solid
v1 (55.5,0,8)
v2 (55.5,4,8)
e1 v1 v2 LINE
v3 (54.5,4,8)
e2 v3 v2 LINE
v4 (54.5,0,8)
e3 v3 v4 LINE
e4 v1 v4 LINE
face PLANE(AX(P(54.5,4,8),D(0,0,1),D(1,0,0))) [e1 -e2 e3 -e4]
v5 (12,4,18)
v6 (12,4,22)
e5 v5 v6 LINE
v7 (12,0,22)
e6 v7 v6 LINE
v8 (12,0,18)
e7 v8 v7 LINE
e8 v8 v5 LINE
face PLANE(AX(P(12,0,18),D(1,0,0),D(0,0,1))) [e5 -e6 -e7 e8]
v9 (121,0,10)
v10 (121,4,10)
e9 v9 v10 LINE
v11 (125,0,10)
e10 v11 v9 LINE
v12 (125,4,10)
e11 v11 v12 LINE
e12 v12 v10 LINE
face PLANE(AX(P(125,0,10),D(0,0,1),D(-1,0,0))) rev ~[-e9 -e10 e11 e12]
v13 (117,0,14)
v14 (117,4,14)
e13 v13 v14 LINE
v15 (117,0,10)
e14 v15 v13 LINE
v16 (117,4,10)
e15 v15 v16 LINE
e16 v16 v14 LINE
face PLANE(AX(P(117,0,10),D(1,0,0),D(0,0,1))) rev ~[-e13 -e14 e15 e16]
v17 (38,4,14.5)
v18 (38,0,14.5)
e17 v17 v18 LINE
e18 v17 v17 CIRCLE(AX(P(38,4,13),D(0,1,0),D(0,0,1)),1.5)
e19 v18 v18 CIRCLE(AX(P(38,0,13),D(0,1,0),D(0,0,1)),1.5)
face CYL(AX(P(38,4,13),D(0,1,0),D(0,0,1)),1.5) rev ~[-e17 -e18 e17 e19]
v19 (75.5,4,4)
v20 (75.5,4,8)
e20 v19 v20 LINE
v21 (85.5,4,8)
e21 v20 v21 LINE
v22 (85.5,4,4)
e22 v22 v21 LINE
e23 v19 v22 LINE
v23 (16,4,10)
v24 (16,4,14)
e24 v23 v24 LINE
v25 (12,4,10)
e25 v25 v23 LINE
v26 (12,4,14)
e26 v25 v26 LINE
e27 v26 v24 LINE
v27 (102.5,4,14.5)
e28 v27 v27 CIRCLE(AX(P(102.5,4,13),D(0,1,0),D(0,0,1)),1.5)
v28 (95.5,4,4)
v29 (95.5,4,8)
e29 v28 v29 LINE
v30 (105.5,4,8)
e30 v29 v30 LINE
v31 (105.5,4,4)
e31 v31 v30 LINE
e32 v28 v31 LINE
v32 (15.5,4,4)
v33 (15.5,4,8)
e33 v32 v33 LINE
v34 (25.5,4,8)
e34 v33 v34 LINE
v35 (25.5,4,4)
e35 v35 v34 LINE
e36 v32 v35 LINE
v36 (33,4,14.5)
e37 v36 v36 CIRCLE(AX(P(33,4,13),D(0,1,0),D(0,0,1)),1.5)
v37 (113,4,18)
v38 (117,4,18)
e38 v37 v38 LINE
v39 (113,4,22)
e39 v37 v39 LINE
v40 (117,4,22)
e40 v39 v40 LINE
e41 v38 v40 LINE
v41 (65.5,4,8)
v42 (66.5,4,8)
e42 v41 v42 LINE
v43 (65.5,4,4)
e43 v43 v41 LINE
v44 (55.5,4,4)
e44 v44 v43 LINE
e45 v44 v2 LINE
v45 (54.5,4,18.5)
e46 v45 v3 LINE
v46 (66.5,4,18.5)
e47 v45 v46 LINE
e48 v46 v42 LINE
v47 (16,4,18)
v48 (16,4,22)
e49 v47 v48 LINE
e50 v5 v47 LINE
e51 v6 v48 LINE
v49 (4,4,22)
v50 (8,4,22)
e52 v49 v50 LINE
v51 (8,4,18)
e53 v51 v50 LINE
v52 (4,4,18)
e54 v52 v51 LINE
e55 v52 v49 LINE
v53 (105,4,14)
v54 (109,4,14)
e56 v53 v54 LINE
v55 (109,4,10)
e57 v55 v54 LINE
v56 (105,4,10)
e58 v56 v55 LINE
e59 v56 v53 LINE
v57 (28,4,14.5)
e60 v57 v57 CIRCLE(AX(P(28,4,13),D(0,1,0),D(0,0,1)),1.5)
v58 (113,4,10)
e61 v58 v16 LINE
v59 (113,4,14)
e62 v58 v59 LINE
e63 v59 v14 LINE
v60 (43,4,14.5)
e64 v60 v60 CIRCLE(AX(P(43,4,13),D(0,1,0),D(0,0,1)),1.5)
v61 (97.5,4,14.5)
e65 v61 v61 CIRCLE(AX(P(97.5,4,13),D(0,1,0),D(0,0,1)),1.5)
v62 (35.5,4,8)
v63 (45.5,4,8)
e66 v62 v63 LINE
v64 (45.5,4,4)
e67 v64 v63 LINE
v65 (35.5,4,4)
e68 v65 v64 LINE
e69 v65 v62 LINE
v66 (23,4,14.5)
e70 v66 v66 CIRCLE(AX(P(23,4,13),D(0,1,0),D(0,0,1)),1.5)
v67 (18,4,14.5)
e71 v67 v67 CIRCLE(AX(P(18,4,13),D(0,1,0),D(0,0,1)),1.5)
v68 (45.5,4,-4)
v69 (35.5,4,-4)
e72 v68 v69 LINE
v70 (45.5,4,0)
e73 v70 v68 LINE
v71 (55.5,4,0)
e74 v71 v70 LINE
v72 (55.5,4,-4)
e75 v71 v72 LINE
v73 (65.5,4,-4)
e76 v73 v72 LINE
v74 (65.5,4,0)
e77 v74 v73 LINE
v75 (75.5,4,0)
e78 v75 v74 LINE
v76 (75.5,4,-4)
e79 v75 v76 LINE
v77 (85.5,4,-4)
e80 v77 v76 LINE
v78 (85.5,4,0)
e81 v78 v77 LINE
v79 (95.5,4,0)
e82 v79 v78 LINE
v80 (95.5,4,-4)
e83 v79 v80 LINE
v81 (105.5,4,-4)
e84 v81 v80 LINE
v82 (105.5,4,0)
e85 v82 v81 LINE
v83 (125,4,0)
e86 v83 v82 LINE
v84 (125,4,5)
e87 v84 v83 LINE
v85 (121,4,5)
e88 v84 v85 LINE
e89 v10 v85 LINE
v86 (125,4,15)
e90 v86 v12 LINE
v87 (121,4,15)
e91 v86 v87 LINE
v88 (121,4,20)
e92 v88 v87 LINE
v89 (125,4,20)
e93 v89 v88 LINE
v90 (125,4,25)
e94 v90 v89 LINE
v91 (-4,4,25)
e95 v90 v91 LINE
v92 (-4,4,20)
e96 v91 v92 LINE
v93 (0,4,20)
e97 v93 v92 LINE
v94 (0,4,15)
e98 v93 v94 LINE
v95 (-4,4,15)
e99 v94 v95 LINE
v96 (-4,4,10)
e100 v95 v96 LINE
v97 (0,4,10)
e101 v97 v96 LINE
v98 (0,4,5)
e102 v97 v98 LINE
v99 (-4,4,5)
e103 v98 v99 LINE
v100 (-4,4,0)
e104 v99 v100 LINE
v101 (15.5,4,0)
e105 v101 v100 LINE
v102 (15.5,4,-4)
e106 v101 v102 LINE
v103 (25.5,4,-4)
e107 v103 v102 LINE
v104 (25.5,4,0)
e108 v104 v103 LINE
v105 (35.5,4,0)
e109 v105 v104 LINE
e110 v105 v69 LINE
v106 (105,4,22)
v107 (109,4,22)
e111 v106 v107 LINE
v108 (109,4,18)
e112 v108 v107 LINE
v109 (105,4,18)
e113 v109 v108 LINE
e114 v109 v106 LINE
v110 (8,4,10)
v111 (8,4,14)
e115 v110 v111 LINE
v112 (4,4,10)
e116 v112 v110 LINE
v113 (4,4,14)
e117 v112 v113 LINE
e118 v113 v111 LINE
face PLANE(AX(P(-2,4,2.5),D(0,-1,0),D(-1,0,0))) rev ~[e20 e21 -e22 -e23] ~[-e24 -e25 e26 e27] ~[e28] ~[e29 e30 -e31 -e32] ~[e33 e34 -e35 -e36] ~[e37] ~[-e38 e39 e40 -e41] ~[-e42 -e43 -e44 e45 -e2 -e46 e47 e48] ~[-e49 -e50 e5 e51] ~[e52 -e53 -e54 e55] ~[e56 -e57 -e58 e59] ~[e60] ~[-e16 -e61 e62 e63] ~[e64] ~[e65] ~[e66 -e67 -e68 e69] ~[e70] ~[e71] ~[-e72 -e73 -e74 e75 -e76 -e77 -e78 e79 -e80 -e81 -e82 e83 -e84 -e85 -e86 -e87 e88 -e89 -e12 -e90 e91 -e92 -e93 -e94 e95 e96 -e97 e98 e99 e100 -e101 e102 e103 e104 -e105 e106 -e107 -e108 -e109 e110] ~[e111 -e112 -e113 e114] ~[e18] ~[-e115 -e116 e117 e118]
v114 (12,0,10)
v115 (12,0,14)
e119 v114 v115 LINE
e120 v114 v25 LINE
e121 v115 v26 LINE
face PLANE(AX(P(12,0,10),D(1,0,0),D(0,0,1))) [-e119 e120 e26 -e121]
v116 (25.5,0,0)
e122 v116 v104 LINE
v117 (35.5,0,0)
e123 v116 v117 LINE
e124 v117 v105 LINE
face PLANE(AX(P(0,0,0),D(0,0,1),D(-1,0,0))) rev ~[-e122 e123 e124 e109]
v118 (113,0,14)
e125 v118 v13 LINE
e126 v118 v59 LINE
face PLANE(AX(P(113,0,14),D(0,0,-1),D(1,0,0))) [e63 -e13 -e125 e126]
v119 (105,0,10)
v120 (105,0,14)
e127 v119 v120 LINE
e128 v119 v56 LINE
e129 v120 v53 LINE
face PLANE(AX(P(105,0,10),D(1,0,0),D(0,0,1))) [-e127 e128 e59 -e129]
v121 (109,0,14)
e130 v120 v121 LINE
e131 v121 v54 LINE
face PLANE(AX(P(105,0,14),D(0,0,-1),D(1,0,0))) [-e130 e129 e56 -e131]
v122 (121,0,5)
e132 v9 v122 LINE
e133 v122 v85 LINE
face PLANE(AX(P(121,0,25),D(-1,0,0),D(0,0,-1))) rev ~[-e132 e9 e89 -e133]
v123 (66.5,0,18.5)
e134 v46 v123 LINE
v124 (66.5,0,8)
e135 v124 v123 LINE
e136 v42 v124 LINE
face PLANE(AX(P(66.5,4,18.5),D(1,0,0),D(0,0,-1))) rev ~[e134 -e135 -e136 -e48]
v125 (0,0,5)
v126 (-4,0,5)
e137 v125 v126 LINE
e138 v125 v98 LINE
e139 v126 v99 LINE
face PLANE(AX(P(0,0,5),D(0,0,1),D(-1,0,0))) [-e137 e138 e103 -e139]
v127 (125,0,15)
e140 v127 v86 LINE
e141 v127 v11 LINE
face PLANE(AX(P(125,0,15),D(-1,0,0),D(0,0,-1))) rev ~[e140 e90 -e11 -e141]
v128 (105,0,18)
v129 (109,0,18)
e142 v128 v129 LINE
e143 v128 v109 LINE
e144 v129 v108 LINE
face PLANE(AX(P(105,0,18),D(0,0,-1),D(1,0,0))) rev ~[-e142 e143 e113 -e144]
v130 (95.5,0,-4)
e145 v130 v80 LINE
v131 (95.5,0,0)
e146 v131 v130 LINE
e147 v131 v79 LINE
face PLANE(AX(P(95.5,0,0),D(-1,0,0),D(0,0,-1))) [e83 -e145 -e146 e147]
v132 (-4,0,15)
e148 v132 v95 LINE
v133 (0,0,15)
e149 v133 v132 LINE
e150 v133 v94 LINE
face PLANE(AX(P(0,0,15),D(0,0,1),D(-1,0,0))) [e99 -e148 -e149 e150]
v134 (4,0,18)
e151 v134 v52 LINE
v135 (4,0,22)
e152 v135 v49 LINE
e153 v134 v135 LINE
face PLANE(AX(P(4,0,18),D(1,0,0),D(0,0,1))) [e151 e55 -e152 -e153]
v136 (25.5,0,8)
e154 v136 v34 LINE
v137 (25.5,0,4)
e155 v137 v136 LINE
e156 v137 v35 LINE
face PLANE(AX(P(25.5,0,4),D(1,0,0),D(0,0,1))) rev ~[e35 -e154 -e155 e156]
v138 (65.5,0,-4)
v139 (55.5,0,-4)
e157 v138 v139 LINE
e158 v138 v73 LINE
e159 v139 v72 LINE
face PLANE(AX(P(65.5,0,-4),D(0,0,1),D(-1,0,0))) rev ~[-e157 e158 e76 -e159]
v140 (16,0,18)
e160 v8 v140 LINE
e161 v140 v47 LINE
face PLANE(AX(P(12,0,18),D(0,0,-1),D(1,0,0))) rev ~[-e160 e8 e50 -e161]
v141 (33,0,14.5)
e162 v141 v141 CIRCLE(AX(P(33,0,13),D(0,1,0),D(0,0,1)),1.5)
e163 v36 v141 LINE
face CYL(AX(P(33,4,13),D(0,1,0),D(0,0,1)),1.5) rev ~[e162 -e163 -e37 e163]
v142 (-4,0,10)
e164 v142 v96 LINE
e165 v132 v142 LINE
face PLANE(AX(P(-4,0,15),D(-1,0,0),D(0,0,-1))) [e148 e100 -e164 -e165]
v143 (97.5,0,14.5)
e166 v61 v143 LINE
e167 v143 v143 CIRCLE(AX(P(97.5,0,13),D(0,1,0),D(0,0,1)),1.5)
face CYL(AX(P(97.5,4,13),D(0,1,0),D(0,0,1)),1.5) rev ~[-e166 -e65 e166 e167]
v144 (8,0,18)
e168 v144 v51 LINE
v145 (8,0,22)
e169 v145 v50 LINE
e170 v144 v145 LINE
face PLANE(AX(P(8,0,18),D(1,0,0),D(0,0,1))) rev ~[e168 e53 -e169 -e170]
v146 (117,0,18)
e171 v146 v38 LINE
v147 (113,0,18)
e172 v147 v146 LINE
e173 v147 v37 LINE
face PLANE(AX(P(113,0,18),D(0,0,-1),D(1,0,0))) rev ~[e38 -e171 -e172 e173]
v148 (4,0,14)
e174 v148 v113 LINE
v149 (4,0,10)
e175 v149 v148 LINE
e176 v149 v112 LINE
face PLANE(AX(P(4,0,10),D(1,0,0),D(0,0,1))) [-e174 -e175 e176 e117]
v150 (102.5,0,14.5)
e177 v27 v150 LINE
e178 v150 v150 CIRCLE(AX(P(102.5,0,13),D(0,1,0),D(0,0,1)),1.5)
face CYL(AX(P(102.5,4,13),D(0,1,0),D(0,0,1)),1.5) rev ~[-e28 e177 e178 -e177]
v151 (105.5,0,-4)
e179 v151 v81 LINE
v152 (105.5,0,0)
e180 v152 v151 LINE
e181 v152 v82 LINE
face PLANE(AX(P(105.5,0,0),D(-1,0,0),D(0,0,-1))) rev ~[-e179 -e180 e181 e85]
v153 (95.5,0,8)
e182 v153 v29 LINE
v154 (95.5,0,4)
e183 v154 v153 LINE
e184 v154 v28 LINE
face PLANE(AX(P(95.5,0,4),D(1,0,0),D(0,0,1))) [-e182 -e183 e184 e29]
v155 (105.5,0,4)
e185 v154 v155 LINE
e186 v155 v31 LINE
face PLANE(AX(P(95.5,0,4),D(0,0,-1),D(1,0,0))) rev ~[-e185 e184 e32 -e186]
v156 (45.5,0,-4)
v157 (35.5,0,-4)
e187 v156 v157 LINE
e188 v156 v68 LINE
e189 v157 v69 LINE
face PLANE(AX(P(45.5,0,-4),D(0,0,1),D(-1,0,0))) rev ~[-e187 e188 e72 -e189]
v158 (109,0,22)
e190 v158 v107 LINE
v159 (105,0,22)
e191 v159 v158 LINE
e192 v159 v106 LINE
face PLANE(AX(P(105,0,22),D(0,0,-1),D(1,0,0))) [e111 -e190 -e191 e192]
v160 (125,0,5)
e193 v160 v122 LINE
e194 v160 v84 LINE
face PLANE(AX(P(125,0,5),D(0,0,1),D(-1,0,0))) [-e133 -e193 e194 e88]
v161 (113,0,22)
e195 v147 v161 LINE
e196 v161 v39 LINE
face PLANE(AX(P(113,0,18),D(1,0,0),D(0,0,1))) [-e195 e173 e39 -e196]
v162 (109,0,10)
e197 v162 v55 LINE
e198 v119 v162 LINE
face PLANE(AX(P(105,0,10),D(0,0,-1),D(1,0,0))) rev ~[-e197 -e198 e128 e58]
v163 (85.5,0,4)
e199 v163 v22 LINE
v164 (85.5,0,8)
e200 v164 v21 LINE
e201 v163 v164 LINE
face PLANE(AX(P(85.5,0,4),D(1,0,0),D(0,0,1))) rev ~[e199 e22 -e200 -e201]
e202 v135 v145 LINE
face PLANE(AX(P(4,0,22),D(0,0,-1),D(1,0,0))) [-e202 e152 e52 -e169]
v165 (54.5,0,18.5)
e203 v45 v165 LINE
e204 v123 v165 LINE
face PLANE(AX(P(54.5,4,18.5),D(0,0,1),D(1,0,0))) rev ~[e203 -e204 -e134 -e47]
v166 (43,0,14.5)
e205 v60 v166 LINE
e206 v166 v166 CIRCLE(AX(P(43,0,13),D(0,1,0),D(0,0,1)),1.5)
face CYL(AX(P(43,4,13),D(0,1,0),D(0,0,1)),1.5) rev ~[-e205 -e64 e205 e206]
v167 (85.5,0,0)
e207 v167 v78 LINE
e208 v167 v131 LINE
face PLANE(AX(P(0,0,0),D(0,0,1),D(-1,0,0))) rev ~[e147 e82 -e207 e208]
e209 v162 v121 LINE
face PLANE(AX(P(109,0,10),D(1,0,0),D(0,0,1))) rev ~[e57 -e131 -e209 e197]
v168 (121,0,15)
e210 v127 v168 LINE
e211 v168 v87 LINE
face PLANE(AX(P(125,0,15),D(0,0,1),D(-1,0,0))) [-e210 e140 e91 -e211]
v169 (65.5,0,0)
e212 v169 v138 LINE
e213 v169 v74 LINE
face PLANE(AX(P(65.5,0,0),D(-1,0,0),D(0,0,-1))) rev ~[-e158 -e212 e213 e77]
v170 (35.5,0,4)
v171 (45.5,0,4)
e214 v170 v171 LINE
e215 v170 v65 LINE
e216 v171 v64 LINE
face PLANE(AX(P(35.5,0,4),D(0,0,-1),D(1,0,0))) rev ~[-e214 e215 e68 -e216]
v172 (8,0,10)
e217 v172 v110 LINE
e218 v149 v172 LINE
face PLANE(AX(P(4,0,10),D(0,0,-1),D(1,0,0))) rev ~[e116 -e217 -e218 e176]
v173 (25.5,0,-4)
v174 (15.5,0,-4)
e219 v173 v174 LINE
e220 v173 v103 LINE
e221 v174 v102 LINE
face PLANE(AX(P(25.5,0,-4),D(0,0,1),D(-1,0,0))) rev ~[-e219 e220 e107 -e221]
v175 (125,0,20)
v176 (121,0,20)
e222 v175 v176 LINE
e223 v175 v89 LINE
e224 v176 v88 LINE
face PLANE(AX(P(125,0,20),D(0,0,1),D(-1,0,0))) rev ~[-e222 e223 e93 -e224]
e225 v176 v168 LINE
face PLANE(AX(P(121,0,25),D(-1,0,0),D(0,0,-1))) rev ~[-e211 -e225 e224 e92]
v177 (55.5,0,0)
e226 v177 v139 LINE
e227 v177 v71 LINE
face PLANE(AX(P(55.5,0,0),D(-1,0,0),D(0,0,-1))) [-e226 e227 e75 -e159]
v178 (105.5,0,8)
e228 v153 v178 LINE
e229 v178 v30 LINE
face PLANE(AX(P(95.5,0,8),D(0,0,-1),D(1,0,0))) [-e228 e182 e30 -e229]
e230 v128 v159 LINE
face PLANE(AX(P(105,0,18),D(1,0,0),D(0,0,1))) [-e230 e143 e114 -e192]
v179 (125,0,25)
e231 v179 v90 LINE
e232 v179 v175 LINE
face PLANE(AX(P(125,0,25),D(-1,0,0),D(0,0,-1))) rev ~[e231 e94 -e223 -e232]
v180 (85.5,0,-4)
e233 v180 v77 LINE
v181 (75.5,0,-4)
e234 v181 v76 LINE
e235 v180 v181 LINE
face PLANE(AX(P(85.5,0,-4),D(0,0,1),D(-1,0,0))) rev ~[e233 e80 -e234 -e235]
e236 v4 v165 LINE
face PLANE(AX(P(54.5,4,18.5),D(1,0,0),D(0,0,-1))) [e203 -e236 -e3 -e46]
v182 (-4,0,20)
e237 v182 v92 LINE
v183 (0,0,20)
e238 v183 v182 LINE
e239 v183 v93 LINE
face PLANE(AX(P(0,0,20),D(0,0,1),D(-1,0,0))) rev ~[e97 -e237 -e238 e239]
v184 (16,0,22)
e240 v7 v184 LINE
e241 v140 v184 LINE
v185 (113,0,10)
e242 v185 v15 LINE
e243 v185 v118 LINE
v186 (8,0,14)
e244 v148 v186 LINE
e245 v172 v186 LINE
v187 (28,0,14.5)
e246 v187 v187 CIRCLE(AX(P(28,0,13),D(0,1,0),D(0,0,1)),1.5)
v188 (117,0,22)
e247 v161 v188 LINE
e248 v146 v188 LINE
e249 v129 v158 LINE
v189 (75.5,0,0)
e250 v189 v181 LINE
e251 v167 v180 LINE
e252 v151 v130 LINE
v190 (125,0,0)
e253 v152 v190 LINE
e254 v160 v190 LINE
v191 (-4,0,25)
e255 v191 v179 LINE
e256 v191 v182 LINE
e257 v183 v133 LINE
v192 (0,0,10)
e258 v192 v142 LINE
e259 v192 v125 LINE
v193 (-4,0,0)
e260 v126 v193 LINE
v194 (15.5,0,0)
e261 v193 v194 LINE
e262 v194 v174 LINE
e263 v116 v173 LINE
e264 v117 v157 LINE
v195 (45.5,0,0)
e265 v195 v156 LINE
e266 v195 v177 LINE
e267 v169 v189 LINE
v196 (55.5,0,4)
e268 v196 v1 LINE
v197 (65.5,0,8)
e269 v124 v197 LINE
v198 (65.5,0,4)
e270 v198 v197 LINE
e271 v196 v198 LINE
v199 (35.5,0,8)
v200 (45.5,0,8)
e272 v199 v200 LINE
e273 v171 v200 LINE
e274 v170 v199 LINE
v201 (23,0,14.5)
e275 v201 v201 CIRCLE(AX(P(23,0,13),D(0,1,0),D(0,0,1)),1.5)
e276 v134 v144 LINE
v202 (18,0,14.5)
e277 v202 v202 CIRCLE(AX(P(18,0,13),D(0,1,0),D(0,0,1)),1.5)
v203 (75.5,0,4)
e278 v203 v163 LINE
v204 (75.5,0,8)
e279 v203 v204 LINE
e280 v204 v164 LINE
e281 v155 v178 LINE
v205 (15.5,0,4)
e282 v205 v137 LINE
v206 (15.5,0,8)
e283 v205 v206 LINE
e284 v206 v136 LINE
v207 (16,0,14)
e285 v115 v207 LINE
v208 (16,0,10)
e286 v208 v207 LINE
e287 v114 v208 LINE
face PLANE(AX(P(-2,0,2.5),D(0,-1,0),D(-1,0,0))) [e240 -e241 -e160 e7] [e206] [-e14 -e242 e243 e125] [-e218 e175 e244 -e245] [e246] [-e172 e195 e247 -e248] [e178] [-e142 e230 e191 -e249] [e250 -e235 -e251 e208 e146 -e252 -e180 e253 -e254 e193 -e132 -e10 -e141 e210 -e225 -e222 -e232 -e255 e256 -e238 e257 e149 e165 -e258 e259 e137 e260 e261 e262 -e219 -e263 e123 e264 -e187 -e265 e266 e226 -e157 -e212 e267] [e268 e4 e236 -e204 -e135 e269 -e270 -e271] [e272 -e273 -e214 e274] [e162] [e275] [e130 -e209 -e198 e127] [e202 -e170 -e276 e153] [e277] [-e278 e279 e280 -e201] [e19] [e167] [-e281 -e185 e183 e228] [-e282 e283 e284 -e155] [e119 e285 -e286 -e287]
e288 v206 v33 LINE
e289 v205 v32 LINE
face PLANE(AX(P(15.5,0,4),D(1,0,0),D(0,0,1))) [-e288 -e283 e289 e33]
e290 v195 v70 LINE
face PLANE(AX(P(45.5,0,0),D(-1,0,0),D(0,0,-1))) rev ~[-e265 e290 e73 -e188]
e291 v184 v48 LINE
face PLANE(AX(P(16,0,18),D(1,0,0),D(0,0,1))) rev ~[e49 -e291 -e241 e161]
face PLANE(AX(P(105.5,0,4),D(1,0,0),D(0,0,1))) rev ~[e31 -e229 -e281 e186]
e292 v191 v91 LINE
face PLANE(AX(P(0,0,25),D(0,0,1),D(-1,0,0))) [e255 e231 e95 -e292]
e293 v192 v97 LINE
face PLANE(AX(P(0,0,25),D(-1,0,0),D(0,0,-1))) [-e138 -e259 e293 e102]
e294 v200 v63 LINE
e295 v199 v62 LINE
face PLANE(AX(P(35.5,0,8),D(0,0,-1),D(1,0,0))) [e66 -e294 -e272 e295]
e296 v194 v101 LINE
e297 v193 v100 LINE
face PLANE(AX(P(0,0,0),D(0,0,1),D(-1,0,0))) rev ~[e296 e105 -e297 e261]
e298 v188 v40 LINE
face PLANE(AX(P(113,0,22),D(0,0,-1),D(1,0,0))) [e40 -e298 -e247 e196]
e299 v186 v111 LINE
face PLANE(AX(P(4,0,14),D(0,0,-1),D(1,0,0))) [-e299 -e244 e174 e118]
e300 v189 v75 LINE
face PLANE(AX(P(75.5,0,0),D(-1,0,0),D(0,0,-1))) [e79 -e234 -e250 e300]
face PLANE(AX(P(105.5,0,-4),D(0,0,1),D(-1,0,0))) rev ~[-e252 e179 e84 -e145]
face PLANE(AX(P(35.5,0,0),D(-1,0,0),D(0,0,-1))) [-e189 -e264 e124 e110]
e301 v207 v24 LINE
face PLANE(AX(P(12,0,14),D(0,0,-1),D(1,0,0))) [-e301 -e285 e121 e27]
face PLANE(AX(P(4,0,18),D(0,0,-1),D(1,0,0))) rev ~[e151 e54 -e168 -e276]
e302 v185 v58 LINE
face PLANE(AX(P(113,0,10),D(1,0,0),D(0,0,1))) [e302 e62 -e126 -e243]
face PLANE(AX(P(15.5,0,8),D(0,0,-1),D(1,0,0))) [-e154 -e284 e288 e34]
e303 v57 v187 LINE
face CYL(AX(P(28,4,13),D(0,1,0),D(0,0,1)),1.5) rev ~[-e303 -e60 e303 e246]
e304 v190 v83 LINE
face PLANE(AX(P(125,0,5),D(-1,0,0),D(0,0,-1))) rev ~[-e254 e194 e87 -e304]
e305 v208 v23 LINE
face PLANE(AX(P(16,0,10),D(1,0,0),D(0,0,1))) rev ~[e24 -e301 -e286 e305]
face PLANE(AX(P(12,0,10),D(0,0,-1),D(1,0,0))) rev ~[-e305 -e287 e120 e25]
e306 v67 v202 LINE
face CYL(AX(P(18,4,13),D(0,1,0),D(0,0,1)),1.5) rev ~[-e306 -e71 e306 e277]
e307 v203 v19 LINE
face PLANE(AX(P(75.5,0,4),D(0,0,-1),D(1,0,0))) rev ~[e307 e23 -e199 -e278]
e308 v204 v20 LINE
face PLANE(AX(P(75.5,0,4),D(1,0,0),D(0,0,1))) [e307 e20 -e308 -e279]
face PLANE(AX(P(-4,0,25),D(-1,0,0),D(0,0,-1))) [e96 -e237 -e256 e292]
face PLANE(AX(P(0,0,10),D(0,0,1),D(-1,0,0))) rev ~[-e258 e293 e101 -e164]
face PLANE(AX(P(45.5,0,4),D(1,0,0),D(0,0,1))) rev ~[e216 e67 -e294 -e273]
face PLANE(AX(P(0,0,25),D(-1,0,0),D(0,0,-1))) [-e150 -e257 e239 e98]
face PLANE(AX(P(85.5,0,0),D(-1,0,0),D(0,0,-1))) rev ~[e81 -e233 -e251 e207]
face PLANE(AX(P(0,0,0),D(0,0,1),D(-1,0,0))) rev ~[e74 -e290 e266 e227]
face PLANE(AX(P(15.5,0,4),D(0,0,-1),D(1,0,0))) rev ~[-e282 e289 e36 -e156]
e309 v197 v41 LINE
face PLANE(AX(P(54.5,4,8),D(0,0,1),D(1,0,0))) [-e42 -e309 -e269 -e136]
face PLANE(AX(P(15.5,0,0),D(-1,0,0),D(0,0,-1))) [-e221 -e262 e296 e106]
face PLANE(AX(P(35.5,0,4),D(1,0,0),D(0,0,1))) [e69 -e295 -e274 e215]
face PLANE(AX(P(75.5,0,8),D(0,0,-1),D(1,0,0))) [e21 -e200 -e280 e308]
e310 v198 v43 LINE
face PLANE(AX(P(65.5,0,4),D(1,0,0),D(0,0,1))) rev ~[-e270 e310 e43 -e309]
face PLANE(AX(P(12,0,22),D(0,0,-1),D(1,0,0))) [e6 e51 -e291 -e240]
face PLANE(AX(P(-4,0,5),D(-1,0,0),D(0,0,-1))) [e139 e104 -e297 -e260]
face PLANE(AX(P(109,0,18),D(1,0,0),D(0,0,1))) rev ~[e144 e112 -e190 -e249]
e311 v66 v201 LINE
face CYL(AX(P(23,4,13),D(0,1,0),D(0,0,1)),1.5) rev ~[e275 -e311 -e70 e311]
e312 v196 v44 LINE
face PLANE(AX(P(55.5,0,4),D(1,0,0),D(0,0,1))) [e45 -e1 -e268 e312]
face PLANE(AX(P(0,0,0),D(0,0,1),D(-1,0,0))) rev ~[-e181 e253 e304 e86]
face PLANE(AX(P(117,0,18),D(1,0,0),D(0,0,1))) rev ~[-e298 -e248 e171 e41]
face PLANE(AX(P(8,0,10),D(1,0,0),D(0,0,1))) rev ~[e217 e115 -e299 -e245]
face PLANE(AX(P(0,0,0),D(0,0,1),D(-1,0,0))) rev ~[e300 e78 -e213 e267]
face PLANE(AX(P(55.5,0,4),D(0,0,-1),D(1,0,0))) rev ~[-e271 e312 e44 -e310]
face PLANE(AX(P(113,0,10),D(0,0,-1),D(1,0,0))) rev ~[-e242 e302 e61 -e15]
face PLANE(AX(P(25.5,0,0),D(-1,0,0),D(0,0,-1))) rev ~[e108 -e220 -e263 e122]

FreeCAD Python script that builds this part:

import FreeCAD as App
import Part
import Sketcher

doc = App.newDocument("Part")
body = doc.addObject("PartDesign::Body", "Body")

# Sketch on XZ plane
sketch1 = body.newObject("Sketcher::SketchObject", "Sketch")
sketch1.AttachmentSupport = (doc.getObject("XZ_Plane"), [""])
sketch1.MapMode = "FlatFace"
sketch1.addGeometry(Part.LineSegment(App.Vector(0, 0, 0), App.Vector(0, 25, 0)), False)
sketch1.addGeometry(Part.LineSegment(App.Vector(0, 25, 0), App.Vector(121, 25, 0)), False)
sketch1.addGeometry(Part.LineSegment(App.Vector(121, 25, 0), App.Vector(121, 0, 0)), False)
sketch1.addGeometry(Part.LineSegment(App.Vector(121, 0, 0), App.Vector(0, 0, 0)), False)
sketch1.addConstraint(Sketcher.Constraint("Coincident", 0, 2, 1, 1))
sketch1.addConstraint(Sketcher.Constraint("Coincident", 1, 2, 2, 1))
sketch1.addConstraint(Sketcher.Constraint("Coincident", 2, 2, 3, 1))
sketch1.addConstraint(Sketcher.Constraint("Coincident", 3, 2, 0, 1))
sketch1.addConstraint(Sketcher.Constraint("Vertical", 0))
sketch1.addConstraint(Sketcher.Constraint("Horizontal", 1))
sketch1.addConstraint(Sketcher.Constraint("Vertical", 2))
sketch1.addConstraint(Sketcher.Constraint("Horizontal", 3))
sketch1.addConstraint(Sketcher.Constraint("Coincident", 3, 2, -1, 1))
sketch1.addConstraint(Sketcher.Constraint("DistanceX", 1, 1, 1, 2, 121.0))
sketch1.addConstraint(Sketcher.Constraint("DistanceY", 0, 1, 0, 2, 25.0))
pad1 = body.newObject("PartDesign::Pad", "Pad")
pad1.Profile = sketch1
pad1.Length = 4
pad1.Reversed = True

# Sketch on XZ plane
sketch2 = body.newObject("Sketcher::SketchObject", "Sketch001")
sketch2.AttachmentSupport = (doc.getObject("XZ_Plane"), [""])
sketch2.MapMode = "FlatFace"
sketch2.addGeometry(Part.LineSegment(App.Vector(0, 20, 0), App.Vector(0, 25, 0)), False)
sketch2.addGeometry(Part.LineSegment(App.Vector(0, 25, 0), App.Vector(-4, 25, 0)), False)
sketch2.addGeometry(Part.LineSegment(App.Vector(-4, 25, 0), App.Vector(-4, 20, 0)), False)
sketch2.addGeometry(Part.LineSegment(App.Vector(-4, 20, 0), App.Vector(0, 20, 0)), False)
sketch2.addGeometry(Part.LineSegment(App.Vector(125, 20, 0), App.Vector(125, 25, 0)), False)
sketch2.addGeometry(Part.LineSegment(App.Vector(125, 25, 0), App.Vector(121, 25, 0)), False)
sketch2.addGeometry(Part.LineSegment(App.Vector(121, 25, 0), App.Vector(121, 20, 0)), False)
sketch2.addGeometry(Part.LineSegment(App.Vector(121, 20, 0), App.Vector(125, 20, 0)), False)
sketch2.addConstraint(Sketcher.Constraint("Coincident", 0, 2, 1, 1))
sketch2.addConstraint(Sketcher.Constraint("Coincident", 1, 2, 2, 1))
sketch2.addConstraint(Sketcher.Constraint("Coincident", 2, 2, 3, 1))
sketch2.addConstraint(Sketcher.Constraint("Coincident", 3, 2, 0, 1))
sketch2.addConstraint(Sketcher.Constraint("Coincident", 4, 2, 5, 1))
sketch2.addConstraint(Sketcher.Constraint("Coincident", 5, 2, 6, 1))
sketch2.addConstraint(Sketcher.Constraint("Coincident", 6, 2, 7, 1))
sketch2.addConstraint(Sketcher.Constraint("Coincident", 7, 2, 4, 1))
sketch2.addConstraint(Sketcher.Constraint("Vertical", 0))
sketch2.addConstraint(Sketcher.Constraint("Horizontal", 1))
sketch2.addConstraint(Sketcher.Constraint("Vertical", 2))
sketch2.addConstraint(Sketcher.Constraint("Horizontal", 3))
sketch2.addConstraint(Sketcher.Constraint("Vertical", 4))
sketch2.addConstraint(Sketcher.Constraint("Horizontal", 5))
sketch2.addConstraint(Sketcher.Constraint("Vertical", 6))
sketch2.addConstraint(Sketcher.Constraint("Horizontal", 7))
sketch2.addConstraint(Sketcher.Constraint("PointOnObject", 0, 2, -2))
sketch2.addConstraint(Sketcher.Constraint("Horizontal", 1, 2, 4, 2))
sketch2.addConstraint(Sketcher.Constraint("Horizontal", 3, 2, 6, 2))
sketch2.addConstraint(Sketcher.Constraint("Equal", 3, 5))
sketch2.addConstraint(Sketcher.Constraint("DistanceX", 1, 2, 1, 1, 4.0))
sketch2.addConstraint(Sketcher.Constraint("DistanceY", 0, 1, 0, 2, 5.0))
sketch2.addConstraint(Sketcher.Constraint("DistanceY", -1, 1, 0, 2, 25.0))
sketch2.addConstraint(Sketcher.Constraint("DistanceX", -1, 1, 4, 2, 125.0))
pad2 = body.newObject("PartDesign::Pad", "Pad001")
pad2.Profile = sketch2
pad2.Length = 4
pad2.Reversed = True
doc.recompute()

linearpattern = body.newObject("PartDesign::LinearPattern", "LinearPattern")
linearpattern.Originals = [pad2]
linearpattern.Direction = (doc.getObject("Z_Axis"), [""])
linearpattern.Mode = "offset"
linearpattern.Offset = 10
linearpattern.Occurrences = 3
linearpattern.Reversed = True
body.Tip = linearpattern

# Sketch on XZ plane
sketch3 = body.newObject("Sketcher::SketchObject", "Sketch002")
sketch3.AttachmentSupport = (doc.getObject("XZ_Plane"), [""])
sketch3.MapMode = "FlatFace"
sketch3.addGeometry(Part.LineSegment(App.Vector(65.5, -4, 0), App.Vector(65.5, 0, 0)), False)
sketch3.addGeometry(Part.LineSegment(App.Vector(65.5, 0, 0), App.Vector(55.5, 0, 0)), False)
sketch3.addGeometry(Part.LineSegment(App.Vector(55.5, 0, 0), App.Vector(55.5, -4, 0)), False)
sketch3.addGeometry(Part.LineSegment(App.Vector(55.5, -4, 0), App.Vector(65.5, -4, 0)), False)
sketch3.addConstraint(Sketcher.Constraint("Coincident", 0, 2, 1, 1))
sketch3.addConstraint(Sketcher.Constraint("Coincident", 1, 2, 2, 1))
sketch3.addConstraint(Sketcher.Constraint("Coincident", 2, 2, 3, 1))
sketch3.addConstraint(Sketcher.Constraint("Coincident", 3, 2, 0, 1))
sketch3.addConstraint(Sketcher.Constraint("Vertical", 0))
sketch3.addConstraint(Sketcher.Constraint("Horizontal", 1))
sketch3.addConstraint(Sketcher.Constraint("Vertical", 2))
sketch3.addConstraint(Sketcher.Constraint("Horizontal", 3))
sketch3.addConstraint(Sketcher.Constraint("PointOnObject", 0, 2, -1))
sketch3.addConstraint(Sketcher.Constraint("DistanceX", 1, 2, 1, 1, 10.0))
sketch3.addConstraint(Sketcher.Constraint("DistanceY", 0, 1, 0, 2, 4.0))
sketch3.addConstraint(Sketcher.Constraint("DistanceX", -1, 1, 0, 2, 65.5))
pad3 = body.newObject("PartDesign::Pad", "Pad002")
pad3.Profile = sketch3
pad3.Length = 4
pad3.Reversed = True
doc.recompute()

linearpattern2 = body.newObject("PartDesign::LinearPattern", "LinearPattern001")
linearpattern2.Originals = [pad3]
linearpattern2.Direction = (doc.getObject("X_Axis"), [""])
linearpattern2.Mode = "offset"
linearpattern2.Offset = 20
linearpattern2.Occurrences = 3
body.Tip = linearpattern2
doc.recompute()

linearpattern3 = body.newObject("PartDesign::LinearPattern", "LinearPattern002")
linearpattern3.Originals = [pad3]
linearpattern3.Direction = (doc.getObject("X_Axis"), [""])
linearpattern3.Mode = "offset"
linearpattern3.Offset = 20
linearpattern3.Occurrences = 3
linearpattern3.Reversed = True
body.Tip = linearpattern3

# Sketch on XZ plane
sketch4 = body.newObject("Sketcher::SketchObject", "Sketch003")
sketch4.AttachmentSupport = (doc.getObject("XZ_Plane"), [""])
sketch4.MapMode = "FlatFace"
sketch4.addGeometry(Part.LineSegment(App.Vector(15.5, 8, 0), App.Vector(15.5, 4, 0)), False)
sketch4.addGeometry(Part.LineSegment(App.Vector(15.5, 4, 0), App.Vector(25.5, 4, 0)), False)
sketch4.addGeometry(Part.LineSegment(App.Vector(25.5, 4, 0), App.Vector(25.5, 8, 0)), False)
sketch4.addGeometry(Part.LineSegment(App.Vector(25.5, 8, 0), App.Vector(15.5, 8, 0)), False)
sketch4.addGeometry(Part.LineSegment(App.Vector(35.5, 8, 0), App.Vector(35.5, 4, 0)), False)
sketch4.addGeometry(Part.LineSegment(App.Vector(35.5, 4, 0), App.Vector(45.5, 4, 0)), False)
sketch4.addGeometry(Part.LineSegment(App.Vector(45.5, 4, 0), App.Vector(45.5, 8, 0)), False)
sketch4.addGeometry(Part.LineSegment(App.Vector(45.5, 8, 0), App.Vector(35.5, 8, 0)), False)
sketch4.addGeometry(Part.LineSegment(App.Vector(55.5, 8, 0), App.Vector(55.5, 4, 0)), False)
sketch4.addGeometry(Part.LineSegment(App.Vector(55.5, 4, 0), App.Vector(65.5, 4, 0)), False)
sketch4.addGeometry(Part.LineSegment(App.Vector(65.5, 4, 0), App.Vector(65.5, 8, 0)), False)
sketch4.addGeometry(Part.LineSegment(App.Vector(65.5, 8, 0), App.Vector(55.5, 8, 0)), False)
sketch4.addGeometry(Part.LineSegment(App.Vector(75.5, 8, 0), App.Vector(75.5, 4, 0)), False)
sketch4.addGeometry(Part.LineSegment(App.Vector(75.5, 4, 0), App.Vector(85.5, 4, 0)), False)
sketch4.addGeometry(Part.LineSegment(App.Vector(85.5, 4, 0), App.Vector(85.5, 8, 0)), False)
sketch4.addGeometry(Part.LineSegment(App.Vector(85.5, 8, 0), App.Vector(75.5, 8, 0)), False)
sketch4.addGeometry(Part.LineSegment(App.Vector(95.5, 8, 0), App.Vector(95.5, 4, 0)), False)
sketch4.addGeometry(Part.LineSegment(App.Vector(95.5, 4, 0), App.Vector(105.5, 4, 0)), False)
sketch4.addGeometry(Part.LineSegment(App.Vector(105.5, 4, 0), App.Vector(105.5, 8, 0)), False)
sketch4.addGeometry(Part.LineSegment(App.Vector(105.5, 8, 0), App.Vector(95.5, 8, 0)), False)
sketch4.addConstraint(Sketcher.Constraint("Coincident", 0, 2, 1, 1))
sketch4.addConstraint(Sketcher.Constraint("Coincident", 1, 2, 2, 1))
sketch4.addConstraint(Sketcher.Constraint("Coincident", 2, 2, 3, 1))
sketch4.addConstraint(Sketcher.Constraint("Coincident", 3, 2, 0, 1))
sketch4.addConstraint(Sketcher.Constraint("Coincident", 4, 2, 5, 1))
sketch4.addConstraint(Sketcher.Constraint("Coincident", 5, 2, 6, 1))
sketch4.addConstraint(Sketcher.Constraint("Coincident", 6, 2, 7, 1))
sketch4.addConstraint(Sketcher.Constraint("Coincident", 7, 2, 4, 1))
sketch4.addConstraint(Sketcher.Constraint("Coincident", 8, 2, 9, 1))
sketch4.addConstraint(Sketcher.Constraint("Coincident", 9, 2, 10, 1))
sketch4.addConstraint(Sketcher.Constraint("Coincident", 10, 2, 11, 1))
sketch4.addConstraint(Sketcher.Constraint("Coincident", 11, 2, 8, 1))
sketch4.addConstraint(Sketcher.Constraint("Coincident", 12, 2, 13, 1))
sketch4.addConstraint(Sketcher.Constraint("Coincident", 13, 2, 14, 1))
sketch4.addConstraint(Sketcher.Constraint("Coincident", 14, 2, 15, 1))
sketch4.addConstraint(Sketcher.Constraint("Coincident", 15, 2, 12, 1))
sketch4.addConstraint(Sketcher.Constraint("Coincident", 16, 2, 17, 1))
sketch4.addConstraint(Sketcher.Constraint("Coincident", 17, 2, 18, 1))
sketch4.addConstraint(Sketcher.Constraint("Coincident", 18, 2, 19, 1))
sketch4.addConstraint(Sketcher.Constraint("Coincident", 19, 2, 16, 1))
sketch4.addConstraint(Sketcher.Constraint("Vertical", 0))
sketch4.addConstraint(Sketcher.Constraint("Horizontal", 1))
sketch4.addConstraint(Sketcher.Constraint("Vertical", 2))
sketch4.addConstraint(Sketcher.Constraint("Horizontal", 3))
sketch4.addConstraint(Sketcher.Constraint("Vertical", 4))
sketch4.addConstraint(Sketcher.Constraint("Horizontal", 5))
sketch4.addConstraint(Sketcher.Constraint("Vertical", 6))
sketch4.addConstraint(Sketcher.Constraint("Horizontal", 7))
sketch4.addConstraint(Sketcher.Constraint("Vertical", 8))
sketch4.addConstraint(Sketcher.Constraint("Horizontal", 9))
sketch4.addConstraint(Sketcher.Constraint("Vertical", 10))
sketch4.addConstraint(Sketcher.Constraint("Horizontal", 11))
sketch4.addConstraint(Sketcher.Constraint("Vertical", 12))
sketch4.addConstraint(Sketcher.Constraint("Horizontal", 13))
sketch4.addConstraint(Sketcher.Constraint("Vertical", 14))
sketch4.addConstraint(Sketcher.Constraint("Horizontal", 15))
sketch4.addConstraint(Sketcher.Constraint("Vertical", 16))
sketch4.addConstraint(Sketcher.Constraint("Horizontal", 17))
sketch4.addConstraint(Sketcher.Constraint("Vertical", 18))
sketch4.addConstraint(Sketcher.Constraint("Horizontal", 19))
sketch4.addConstraint(Sketcher.Constraint("Horizontal", 1, 2, 4, 2))
sketch4.addConstraint(Sketcher.Constraint("Horizontal", 3, 2, 6, 2))
sketch4.addConstraint(Sketcher.Constraint("Horizontal", 5, 2, 8, 2))
sketch4.addConstraint(Sketcher.Constraint("Horizontal", 7, 2, 10, 2))
sketch4.addConstraint(Sketcher.Constraint("Horizontal", 9, 2, 12, 2))
sketch4.addConstraint(Sketcher.Constraint("Horizontal", 11, 2, 14, 2))
sketch4.addConstraint(Sketcher.Constraint("Horizontal", 13, 2, 16, 2))
sketch4.addConstraint(Sketcher.Constraint("Horizontal", 15, 2, 18, 2))
sketch4.addConstraint(Sketcher.Constraint("Equal", 3, 5))
sketch4.addConstraint(Sketcher.Constraint("Equal", 7, 9))
sketch4.addConstraint(Sketcher.Constraint("Equal", 11, 13))
sketch4.addConstraint(Sketcher.Constraint("Equal", 15, 17))
sketch4.addConstraint(Sketcher.Constraint("DistanceX", 1, 1, 1, 2, 10.0))
sketch4.addConstraint(Sketcher.Constraint("DistanceY", 0, 2, 0, 1, 4.0))
sketch4.addConstraint(Sketcher.Constraint("DistanceY", -1, 1, 0, 2, 4.0))
sketch4.addConstraint(Sketcher.Constraint("DistanceX", 1, 2, 4, 2, 10.0))
sketch4.addConstraint(Sketcher.Constraint("DistanceX", 5, 2, 8, 2, 10.0))
sketch4.addConstraint(Sketcher.Constraint("DistanceX", 9, 2, 12, 2, 10.0))
sketch4.addConstraint(Sketcher.Constraint("DistanceX", 13, 2, 16, 2, 10.0))
sketch4.addConstraint(Sketcher.Constraint("DistanceX", -1, 1, 0, 2, 15.5))
pocket1 = body.newObject("PartDesign::Pocket", "Pocket")
pocket1.Profile = sketch4
pocket1.Type = "ThroughAll"

# Sketch on XZ plane
sketch5 = body.newObject("Sketcher::SketchObject", "Sketch004")
sketch5.AttachmentSupport = (doc.getObject("XZ_Plane"), [""])
sketch5.MapMode = "FlatFace"
sketch5.AttachmentOffset = App.Placement(App.Vector(0, 0, -4), App.Rotation())
sketch5.addGeometry(Part.Circle(App.Vector(97.5, 13, 0), App.Vector(0, 0, 1), 1.5), False)
sketch5.addGeometry(Part.Circle(App.Vector(102.5, 13, 0), App.Vector(0, 0, 1), 1.5), False)
sketch5.addGeometry(Part.Circle(App.Vector(43, 13, 0), App.Vector(0, 0, 1), 1.5), False)
sketch5.addGeometry(Part.Circle(App.Vector(38, 13, 0), App.Vector(0, 0, 1), 1.5), False)
sketch5.addGeometry(Part.Circle(App.Vector(33, 13, 0), App.Vector(0, 0, 1), 1.5), False)
sketch5.addGeometry(Part.Circle(App.Vector(28, 13, 0), App.Vector(0, 0, 1), 1.5), False)
sketch5.addGeometry(Part.Circle(App.Vector(23, 13, 0), App.Vector(0, 0, 1), 1.5), False)
sketch5.addGeometry(Part.Circle(App.Vector(18, 13, 0), App.Vector(0, 0, 1), 1.5), False)
sketch5.addGeometry(Part.LineSegment(App.Vector(54.5, 8, 0), App.Vector(54.5, 18.5, 0)), False)
sketch5.addGeometry(Part.LineSegment(App.Vector(54.5, 18.5, 0), App.Vector(66.5, 18.5, 0)), False)
sketch5.addGeometry(Part.LineSegment(App.Vector(66.5, 18.5, 0), App.Vector(66.5, 8, 0)), False)
sketch5.addGeometry(Part.LineSegment(App.Vector(66.5, 8, 0), App.Vector(54.5, 8, 0)), False)
sketch5.addConstraint(Sketcher.Constraint("Coincident", 8, 2, 9, 1))
sketch5.addConstraint(Sketcher.Constraint("Coincident", 9, 2, 10, 1))
sketch5.addConstraint(Sketcher.Constraint("Coincident", 10, 2, 11, 1))
sketch5.addConstraint(Sketcher.Constraint("Coincident", 11, 2, 8, 1))
sketch5.addConstraint(Sketcher.Constraint("Vertical", 8))
sketch5.addConstraint(Sketcher.Constraint("Horizontal", 9))
sketch5.addConstraint(Sketcher.Constraint("Vertical", 10))
sketch5.addConstraint(Sketcher.Constraint("Horizontal", 11))
sketch5.addConstraint(Sketcher.Constraint("Equal", 0, 1))
sketch5.addConstraint(Sketcher.Constraint("Equal", 1, 2))
sketch5.addConstraint(Sketcher.Constraint("Equal", 2, 3))
sketch5.addConstraint(Sketcher.Constraint("Equal", 3, 4))
sketch5.addConstraint(Sketcher.Constraint("Equal", 4, 5))
sketch5.addConstraint(Sketcher.Constraint("Equal", 5, 6))
sketch5.addConstraint(Sketcher.Constraint("Equal", 6, 7))
sketch5.addConstraint(Sketcher.Constraint("Horizontal", 0, 3, 1, 3))
sketch5.addConstraint(Sketcher.Constraint("Horizontal", 1, 3, 2, 3))
sketch5.addConstraint(Sketcher.Constraint("Horizontal", 2, 3, 3, 3))
sketch5.addConstraint(Sketcher.Constraint("Horizontal", 3, 3, 4, 3))
sketch5.addConstraint(Sketcher.Constraint("Horizontal", 4, 3, 5, 3))
sketch5.addConstraint(Sketcher.Constraint("Horizontal", 5, 3, 6, 3))
sketch5.addConstraint(Sketcher.Constraint("Horizontal", 6, 3, 7, 3))
sketch5.addConstraint(Sketcher.Constraint("Diameter", 0, 3.0))
sketch5.addConstraint(Sketcher.Constraint("DistanceX", 9, 1, 9, 2, 12.0))
sketch5.addConstraint(Sketcher.Constraint("DistanceY", 8, 1, 8, 2, 10.5))
sketch5.addConstraint(Sketcher.Constraint("DistanceY", -1, 1, 0, 3, 13.0))
sketch5.addConstraint(Sketcher.Constraint("DistanceX", -1, 1, 2, 3, 43.0))
sketch5.addConstraint(Sketcher.Constraint("DistanceX", -1, 1, 3, 3, 38.0))
sketch5.addConstraint(Sketcher.Constraint("DistanceX", -1, 1, 4, 3, 33.0))
sketch5.addConstraint(Sketcher.Constraint("DistanceX", -1, 1, 5, 3, 28.0))
sketch5.addConstraint(Sketcher.Constraint("DistanceX", -1, 1, 6, 3, 23.0))
sketch5.addConstraint(Sketcher.Constraint("DistanceX", -1, 1, 7, 3, 18.0))
sketch5.addConstraint(Sketcher.Constraint("DistanceY", -1, 1, 10, 2, 8.0))
sketch5.addConstraint(Sketcher.Constraint("DistanceX", 0, 3, 1, 3, 5.0))
sketch5.addConstraint(Sketcher.Constraint("DistanceX", 9, 2, 0, 3, 31.0))
sketch5.addConstraint(Sketcher.Constraint("DistanceX", -1, 1, 0, 3, 97.5))
pocket2 = body.newObject("PartDesign::Pocket", "Pocket001")
pocket2.Profile = sketch5
pocket2.Type = "ThroughAll"
pocket2.Reversed = True

# Sketch on XZ plane
sketch6 = body.newObject("Sketcher::SketchObject", "Sketch005")
sketch6.AttachmentSupport = (doc.getObject("XZ_Plane"), [""])
sketch6.MapMode = "FlatFace"
sketch6.addGeometry(Part.LineSegment(App.Vector(4, 22, 0), App.Vector(4, 18, 0)), False)
sketch6.addGeometry(Part.LineSegment(App.Vector(4, 18, 0), App.Vector(8, 18, 0)), False)
sketch6.addGeometry(Part.LineSegment(App.Vector(8, 18, 0), App.Vector(8, 22, 0)), False)
sketch6.addGeometry(Part.LineSegment(App.Vector(8, 22, 0), App.Vector(4, 22, 0)), False)
sketch6.addGeometry(Part.LineSegment(App.Vector(12, 22, 0), App.Vector(12, 18, 0)), False)
sketch6.addGeometry(Part.LineSegment(App.Vector(12, 18, 0), App.Vector(16, 18, 0)), False)
sketch6.addGeometry(Part.LineSegment(App.Vector(16, 18, 0), App.Vector(16, 22, 0)), False)
sketch6.addGeometry(Part.LineSegment(App.Vector(16, 22, 0), App.Vector(12, 22, 0)), False)
sketch6.addGeometry(Part.LineSegment(App.Vector(4, 14, 0), App.Vector(4, 10, 0)), False)
sketch6.addGeometry(Part.LineSegment(App.Vector(4, 10, 0), App.Vector(8, 10, 0)), False)
sketch6.addGeometry(Part.LineSegment(App.Vector(8, 10, 0), App.Vector(8, 14, 0)), False)
sketch6.addGeometry(Part.LineSegment(App.Vector(8, 14, 0), App.Vector(4, 14, 0)), False)
sketch6.addGeometry(Part.LineSegment(App.Vector(12, 14, 0), App.Vector(12, 10, 0)), False)
sketch6.addGeometry(Part.LineSegment(App.Vector(12, 10, 0), App.Vector(16, 10, 0)), False)
sketch6.addGeometry(Part.LineSegment(App.Vector(16, 10, 0), App.Vector(16, 14, 0)), False)
sketch6.addGeometry(Part.LineSegment(App.Vector(16, 14, 0), App.Vector(12, 14, 0)), False)
sketch6.addGeometry(Part.LineSegment(App.Vector(105, 22, 0), App.Vector(105, 18, 0)), False)
sketch6.addGeometry(Part.LineSegment(App.Vector(105, 18, 0), App.Vector(109, 18, 0)), False)
sketch6.addGeometry(Part.LineSegment(App.Vector(109, 18, 0), App.Vector(109, 22, 0)), False)
sketch6.addGeometry(Part.LineSegment(App.Vector(109, 22, 0), App.Vector(105, 22, 0)), False)
sketch6.addGeometry(Part.LineSegment(App.Vector(105, 14, 0), App.Vector(105, 10, 0)), False)
sketch6.addGeometry(Part.LineSegment(App.Vector(105, 10, 0), App.Vector(109, 10, 0)), False)
sketch6.addGeometry(Part.LineSegment(App.Vector(109, 10, 0), App.Vector(109, 14, 0)), False)
sketch6.addGeometry(Part.LineSegment(App.Vector(109, 14, 0), App.Vector(105, 14, 0)), False)
sketch6.addGeometry(Part.LineSegment(App.Vector(113, 22, 0), App.Vector(113, 18, 0)), False)
sketch6.addGeometry(Part.LineSegment(App.Vector(113, 18, 0), App.Vector(117, 18, 0)), False)
sketch6.addGeometry(Part.LineSegment(App.Vector(117, 18, 0), App.Vector(117, 22, 0)), False)
sketch6.addGeometry(Part.LineSegment(App.Vector(117, 22, 0), App.Vector(113, 22, 0)), False)
sketch6.addGeometry(Part.LineSegment(App.Vector(113, 14, 0), App.Vector(113, 10, 0)), False)
sketch6.addGeometry(Part.LineSegment(App.Vector(113, 10, 0), App.Vector(117, 10, 0)), False)
sketch6.addGeometry(Part.LineSegment(App.Vector(117, 10, 0), App.Vector(117, 14, 0)), False)
sketch6.addGeometry(Part.LineSegment(App.Vector(117, 14, 0), App.Vector(113, 14, 0)), False)
sketch6.addConstraint(Sketcher.Constraint("Coincident", 0, 2, 1, 1))
sketch6.addConstraint(Sketcher.Constraint("Coincident", 1, 2, 2, 1))
sketch6.addConstraint(Sketcher.Constraint("Coincident", 2, 2, 3, 1))
sketch6.addConstraint(Sketcher.Constraint("Coincident", 3, 2, 0, 1))
sketch6.addConstraint(Sketcher.Constraint("Coincident", 4, 2, 5, 1))
sketch6.addConstraint(Sketcher.Constraint("Coincident", 5, 2, 6, 1))
sketch6.addConstraint(Sketcher.Constraint("Coincident", 6, 2, 7, 1))
sketch6.addConstraint(Sketcher.Constraint("Coincident", 7, 2, 4, 1))
sketch6.addConstraint(Sketcher.Constraint("Coincident", 8, 2, 9, 1))
sketch6.addConstraint(Sketcher.Constraint("Coincident", 9, 2, 10, 1))
sketch6.addConstraint(Sketcher.Constraint("Coincident", 10, 2, 11, 1))
sketch6.addConstraint(Sketcher.Constraint("Coincident", 11, 2, 8, 1))
sketch6.addConstraint(Sketcher.Constraint("Coincident", 12, 2, 13, 1))
sketch6.addConstraint(Sketcher.Constraint("Coincident", 13, 2, 14, 1))
sketch6.addConstraint(Sketcher.Constraint("Coincident", 14, 2, 15, 1))
sketch6.addConstraint(Sketcher.Constraint("Coincident", 15, 2, 12, 1))
sketch6.addConstraint(Sketcher.Constraint("Coincident", 16, 2, 17, 1))
sketch6.addConstraint(Sketcher.Constraint("Coincident", 17, 2, 18, 1))
sketch6.addConstraint(Sketcher.Constraint("Coincident", 18, 2, 19, 1))
sketch6.addConstraint(Sketcher.Constraint("Coincident", 19, 2, 16, 1))
sketch6.addConstraint(Sketcher.Constraint("Coincident", 20, 2, 21, 1))
sketch6.addConstraint(Sketcher.Constraint("Coincident", 21, 2, 22, 1))
sketch6.addConstraint(Sketcher.Constraint("Coincident", 22, 2, 23, 1))
sketch6.addConstraint(Sketcher.Constraint("Coincident", 23, 2, 20, 1))
sketch6.addConstraint(Sketcher.Constraint("Coincident", 24, 2, 25, 1))
sketch6.addConstraint(Sketcher.Constraint("Coincident", 25, 2, 26, 1))
sketch6.addConstraint(Sketcher.Constraint("Coincident", 26, 2, 27, 1))
sketch6.addConstraint(Sketcher.Constraint("Coincident", 27, 2, 24, 1))
sketch6.addConstraint(Sketcher.Constraint("Coincident", 28, 2, 29, 1))
sketch6.addConstraint(Sketcher.Constraint("Coincident", 29, 2, 30, 1))
sketch6.addConstraint(Sketcher.Constraint("Coincident", 30, 2, 31, 1))
sketch6.addConstraint(Sketcher.Constraint("Coincident", 31, 2, 28, 1))
sketch6.addConstraint(Sketcher.Constraint("Vertical", 0))
sketch6.addConstraint(Sketcher.Constraint("Horizontal", 1))
sketch6.addConstraint(Sketcher.Constraint("Vertical", 2))
sketch6.addConstraint(Sketcher.Constraint("Horizontal", 3))
sketch6.addConstraint(Sketcher.Constraint("Vertical", 4))
sketch6.addConstraint(Sketcher.Constraint("Horizontal", 5))
sketch6.addConstraint(Sketcher.Constraint("Vertical", 6))
sketch6.addConstraint(Sketcher.Constraint("Horizontal", 7))
sketch6.addConstraint(Sketcher.Constraint("Vertical", 8))
sketch6.addConstraint(Sketcher.Constraint("Horizontal", 9))
sketch6.addConstraint(Sketcher.Constraint("Vertical", 10))
sketch6.addConstraint(Sketcher.Constraint("Horizontal", 11))
sketch6.addConstraint(Sketcher.Constraint("Vertical", 12))
sketch6.addConstraint(Sketcher.Constraint("Horizontal", 13))
sketch6.addConstraint(Sketcher.Constraint("Vertical", 14))
sketch6.addConstraint(Sketcher.Constraint("Horizontal", 15))
sketch6.addConstraint(Sketcher.Constraint("Vertical", 16))
sketch6.addConstraint(Sketcher.Constraint("Horizontal", 17))
sketch6.addConstraint(Sketcher.Constraint("Vertical", 18))
sketch6.addConstraint(Sketcher.Constraint("Horizontal", 19))
sketch6.addConstraint(Sketcher.Constraint("Vertical", 20))
sketch6.addConstraint(Sketcher.Constraint("Horizontal", 21))
sketch6.addConstraint(Sketcher.Constraint("Vertical", 22))
sketch6.addConstraint(Sketcher.Constraint("Horizontal", 23))
sketch6.addConstraint(Sketcher.Constraint("Vertical", 24))
sketch6.addConstraint(Sketcher.Constraint("Horizontal", 25))
sketch6.addConstraint(Sketcher.Constraint("Vertical", 26))
sketch6.addConstraint(Sketcher.Constraint("Horizontal", 27))
sketch6.addConstraint(Sketcher.Constraint("Vertical", 28))
sketch6.addConstraint(Sketcher.Constraint("Horizontal", 29))
sketch6.addConstraint(Sketcher.Constraint("Vertical", 30))
sketch6.addConstraint(Sketcher.Constraint("Horizontal", 31))
sketch6.addConstraint(Sketcher.Constraint("Horizontal", 1, 2, 4, 2))
sketch6.addConstraint(Sketcher.Constraint("Horizontal", 3, 2, 6, 2))
sketch6.addConstraint(Sketcher.Constraint("Horizontal", 9, 2, 12, 2))
sketch6.addConstraint(Sketcher.Constraint("Horizontal", 11, 2, 14, 2))
sketch6.addConstraint(Sketcher.Constraint("Horizontal", 5, 2, 16, 2))
sketch6.addConstraint(Sketcher.Constraint("Horizontal", 7, 2, 18, 2))
sketch6.addConstraint(Sketcher.Constraint("Horizontal", 13, 2, 20, 2))
sketch6.addConstraint(Sketcher.Constraint("Horizontal", 15, 2, 22, 2))
sketch6.addConstraint(Sketcher.Constraint("Horizontal", 17, 2, 24, 2))
sketch6.addConstraint(Sketcher.Constraint("Horizontal", 19, 2, 26, 2))
sketch6.addConstraint(Sketcher.Constraint("Horizontal", 21, 2, 28, 2))
sketch6.addConstraint(Sketcher.Constraint("Horizontal", 23, 2, 30, 2))
sketch6.addConstraint(Sketcher.Constraint("Vertical", 3, 2, 8, 2))
sketch6.addConstraint(Sketcher.Constraint("Vertical", 2, 2, 9, 2))
sketch6.addConstraint(Sketcher.Constraint("Vertical", 7, 2, 12, 2))
sketch6.addConstraint(Sketcher.Constraint("Vertical", 6, 2, 13, 2))
sketch6.addConstraint(Sketcher.Constraint("Vertical", 19, 2, 20, 2))
sketch6.addConstraint(Sketcher.Constraint("Vertical", 18, 2, 21, 2))
sketch6.addConstraint(Sketcher.Constraint("Vertical", 27, 2, 28, 2))
sketch6.addConstraint(Sketcher.Constraint("Vertical", 26, 2, 29, 2))
sketch6.addConstraint(Sketcher.Constraint("Equal", 3, 5))
sketch6.addConstraint(Sketcher.Constraint("Equal", 15, 17))
sketch6.addConstraint(Sketcher.Constraint("Equal", 23, 25))
sketch6.addConstraint(Sketcher.Constraint("Equal", 31, 0))
sketch6.addConstraint(Sketcher.Constraint("Equal", 6, 8))
sketch6.addConstraint(Sketcher.Constraint("DistanceX", 1, 1, 1, 2, 4.0))
sketch6.addConstraint(Sketcher.Constraint("DistanceX", -1, 1, 0, 2, 4.0))
sketch6.addConstraint(Sketcher.Constraint("DistanceY", -1, 1, 0, 2, 18.0))
sketch6.addConstraint(Sketcher.Constraint("DistanceX", -1, 1, 4, 2, 12.0))
sketch6.addConstraint(Sketcher.Constraint("DistanceY", -1, 1, 8, 2, 10.0))
sketch6.addConstraint(Sketcher.Constraint("DistanceX", -1, 1, 16, 2, 105.0))
sketch6.addConstraint(Sketcher.Constraint("DistanceX", -1, 1, 24, 2, 113.0))
pocket3 = body.newObject("PartDesign::Pocket", "Pocket002")
pocket3.Profile = sketch6
pocket3.Type = "ThroughAll"

doc.recompute()
